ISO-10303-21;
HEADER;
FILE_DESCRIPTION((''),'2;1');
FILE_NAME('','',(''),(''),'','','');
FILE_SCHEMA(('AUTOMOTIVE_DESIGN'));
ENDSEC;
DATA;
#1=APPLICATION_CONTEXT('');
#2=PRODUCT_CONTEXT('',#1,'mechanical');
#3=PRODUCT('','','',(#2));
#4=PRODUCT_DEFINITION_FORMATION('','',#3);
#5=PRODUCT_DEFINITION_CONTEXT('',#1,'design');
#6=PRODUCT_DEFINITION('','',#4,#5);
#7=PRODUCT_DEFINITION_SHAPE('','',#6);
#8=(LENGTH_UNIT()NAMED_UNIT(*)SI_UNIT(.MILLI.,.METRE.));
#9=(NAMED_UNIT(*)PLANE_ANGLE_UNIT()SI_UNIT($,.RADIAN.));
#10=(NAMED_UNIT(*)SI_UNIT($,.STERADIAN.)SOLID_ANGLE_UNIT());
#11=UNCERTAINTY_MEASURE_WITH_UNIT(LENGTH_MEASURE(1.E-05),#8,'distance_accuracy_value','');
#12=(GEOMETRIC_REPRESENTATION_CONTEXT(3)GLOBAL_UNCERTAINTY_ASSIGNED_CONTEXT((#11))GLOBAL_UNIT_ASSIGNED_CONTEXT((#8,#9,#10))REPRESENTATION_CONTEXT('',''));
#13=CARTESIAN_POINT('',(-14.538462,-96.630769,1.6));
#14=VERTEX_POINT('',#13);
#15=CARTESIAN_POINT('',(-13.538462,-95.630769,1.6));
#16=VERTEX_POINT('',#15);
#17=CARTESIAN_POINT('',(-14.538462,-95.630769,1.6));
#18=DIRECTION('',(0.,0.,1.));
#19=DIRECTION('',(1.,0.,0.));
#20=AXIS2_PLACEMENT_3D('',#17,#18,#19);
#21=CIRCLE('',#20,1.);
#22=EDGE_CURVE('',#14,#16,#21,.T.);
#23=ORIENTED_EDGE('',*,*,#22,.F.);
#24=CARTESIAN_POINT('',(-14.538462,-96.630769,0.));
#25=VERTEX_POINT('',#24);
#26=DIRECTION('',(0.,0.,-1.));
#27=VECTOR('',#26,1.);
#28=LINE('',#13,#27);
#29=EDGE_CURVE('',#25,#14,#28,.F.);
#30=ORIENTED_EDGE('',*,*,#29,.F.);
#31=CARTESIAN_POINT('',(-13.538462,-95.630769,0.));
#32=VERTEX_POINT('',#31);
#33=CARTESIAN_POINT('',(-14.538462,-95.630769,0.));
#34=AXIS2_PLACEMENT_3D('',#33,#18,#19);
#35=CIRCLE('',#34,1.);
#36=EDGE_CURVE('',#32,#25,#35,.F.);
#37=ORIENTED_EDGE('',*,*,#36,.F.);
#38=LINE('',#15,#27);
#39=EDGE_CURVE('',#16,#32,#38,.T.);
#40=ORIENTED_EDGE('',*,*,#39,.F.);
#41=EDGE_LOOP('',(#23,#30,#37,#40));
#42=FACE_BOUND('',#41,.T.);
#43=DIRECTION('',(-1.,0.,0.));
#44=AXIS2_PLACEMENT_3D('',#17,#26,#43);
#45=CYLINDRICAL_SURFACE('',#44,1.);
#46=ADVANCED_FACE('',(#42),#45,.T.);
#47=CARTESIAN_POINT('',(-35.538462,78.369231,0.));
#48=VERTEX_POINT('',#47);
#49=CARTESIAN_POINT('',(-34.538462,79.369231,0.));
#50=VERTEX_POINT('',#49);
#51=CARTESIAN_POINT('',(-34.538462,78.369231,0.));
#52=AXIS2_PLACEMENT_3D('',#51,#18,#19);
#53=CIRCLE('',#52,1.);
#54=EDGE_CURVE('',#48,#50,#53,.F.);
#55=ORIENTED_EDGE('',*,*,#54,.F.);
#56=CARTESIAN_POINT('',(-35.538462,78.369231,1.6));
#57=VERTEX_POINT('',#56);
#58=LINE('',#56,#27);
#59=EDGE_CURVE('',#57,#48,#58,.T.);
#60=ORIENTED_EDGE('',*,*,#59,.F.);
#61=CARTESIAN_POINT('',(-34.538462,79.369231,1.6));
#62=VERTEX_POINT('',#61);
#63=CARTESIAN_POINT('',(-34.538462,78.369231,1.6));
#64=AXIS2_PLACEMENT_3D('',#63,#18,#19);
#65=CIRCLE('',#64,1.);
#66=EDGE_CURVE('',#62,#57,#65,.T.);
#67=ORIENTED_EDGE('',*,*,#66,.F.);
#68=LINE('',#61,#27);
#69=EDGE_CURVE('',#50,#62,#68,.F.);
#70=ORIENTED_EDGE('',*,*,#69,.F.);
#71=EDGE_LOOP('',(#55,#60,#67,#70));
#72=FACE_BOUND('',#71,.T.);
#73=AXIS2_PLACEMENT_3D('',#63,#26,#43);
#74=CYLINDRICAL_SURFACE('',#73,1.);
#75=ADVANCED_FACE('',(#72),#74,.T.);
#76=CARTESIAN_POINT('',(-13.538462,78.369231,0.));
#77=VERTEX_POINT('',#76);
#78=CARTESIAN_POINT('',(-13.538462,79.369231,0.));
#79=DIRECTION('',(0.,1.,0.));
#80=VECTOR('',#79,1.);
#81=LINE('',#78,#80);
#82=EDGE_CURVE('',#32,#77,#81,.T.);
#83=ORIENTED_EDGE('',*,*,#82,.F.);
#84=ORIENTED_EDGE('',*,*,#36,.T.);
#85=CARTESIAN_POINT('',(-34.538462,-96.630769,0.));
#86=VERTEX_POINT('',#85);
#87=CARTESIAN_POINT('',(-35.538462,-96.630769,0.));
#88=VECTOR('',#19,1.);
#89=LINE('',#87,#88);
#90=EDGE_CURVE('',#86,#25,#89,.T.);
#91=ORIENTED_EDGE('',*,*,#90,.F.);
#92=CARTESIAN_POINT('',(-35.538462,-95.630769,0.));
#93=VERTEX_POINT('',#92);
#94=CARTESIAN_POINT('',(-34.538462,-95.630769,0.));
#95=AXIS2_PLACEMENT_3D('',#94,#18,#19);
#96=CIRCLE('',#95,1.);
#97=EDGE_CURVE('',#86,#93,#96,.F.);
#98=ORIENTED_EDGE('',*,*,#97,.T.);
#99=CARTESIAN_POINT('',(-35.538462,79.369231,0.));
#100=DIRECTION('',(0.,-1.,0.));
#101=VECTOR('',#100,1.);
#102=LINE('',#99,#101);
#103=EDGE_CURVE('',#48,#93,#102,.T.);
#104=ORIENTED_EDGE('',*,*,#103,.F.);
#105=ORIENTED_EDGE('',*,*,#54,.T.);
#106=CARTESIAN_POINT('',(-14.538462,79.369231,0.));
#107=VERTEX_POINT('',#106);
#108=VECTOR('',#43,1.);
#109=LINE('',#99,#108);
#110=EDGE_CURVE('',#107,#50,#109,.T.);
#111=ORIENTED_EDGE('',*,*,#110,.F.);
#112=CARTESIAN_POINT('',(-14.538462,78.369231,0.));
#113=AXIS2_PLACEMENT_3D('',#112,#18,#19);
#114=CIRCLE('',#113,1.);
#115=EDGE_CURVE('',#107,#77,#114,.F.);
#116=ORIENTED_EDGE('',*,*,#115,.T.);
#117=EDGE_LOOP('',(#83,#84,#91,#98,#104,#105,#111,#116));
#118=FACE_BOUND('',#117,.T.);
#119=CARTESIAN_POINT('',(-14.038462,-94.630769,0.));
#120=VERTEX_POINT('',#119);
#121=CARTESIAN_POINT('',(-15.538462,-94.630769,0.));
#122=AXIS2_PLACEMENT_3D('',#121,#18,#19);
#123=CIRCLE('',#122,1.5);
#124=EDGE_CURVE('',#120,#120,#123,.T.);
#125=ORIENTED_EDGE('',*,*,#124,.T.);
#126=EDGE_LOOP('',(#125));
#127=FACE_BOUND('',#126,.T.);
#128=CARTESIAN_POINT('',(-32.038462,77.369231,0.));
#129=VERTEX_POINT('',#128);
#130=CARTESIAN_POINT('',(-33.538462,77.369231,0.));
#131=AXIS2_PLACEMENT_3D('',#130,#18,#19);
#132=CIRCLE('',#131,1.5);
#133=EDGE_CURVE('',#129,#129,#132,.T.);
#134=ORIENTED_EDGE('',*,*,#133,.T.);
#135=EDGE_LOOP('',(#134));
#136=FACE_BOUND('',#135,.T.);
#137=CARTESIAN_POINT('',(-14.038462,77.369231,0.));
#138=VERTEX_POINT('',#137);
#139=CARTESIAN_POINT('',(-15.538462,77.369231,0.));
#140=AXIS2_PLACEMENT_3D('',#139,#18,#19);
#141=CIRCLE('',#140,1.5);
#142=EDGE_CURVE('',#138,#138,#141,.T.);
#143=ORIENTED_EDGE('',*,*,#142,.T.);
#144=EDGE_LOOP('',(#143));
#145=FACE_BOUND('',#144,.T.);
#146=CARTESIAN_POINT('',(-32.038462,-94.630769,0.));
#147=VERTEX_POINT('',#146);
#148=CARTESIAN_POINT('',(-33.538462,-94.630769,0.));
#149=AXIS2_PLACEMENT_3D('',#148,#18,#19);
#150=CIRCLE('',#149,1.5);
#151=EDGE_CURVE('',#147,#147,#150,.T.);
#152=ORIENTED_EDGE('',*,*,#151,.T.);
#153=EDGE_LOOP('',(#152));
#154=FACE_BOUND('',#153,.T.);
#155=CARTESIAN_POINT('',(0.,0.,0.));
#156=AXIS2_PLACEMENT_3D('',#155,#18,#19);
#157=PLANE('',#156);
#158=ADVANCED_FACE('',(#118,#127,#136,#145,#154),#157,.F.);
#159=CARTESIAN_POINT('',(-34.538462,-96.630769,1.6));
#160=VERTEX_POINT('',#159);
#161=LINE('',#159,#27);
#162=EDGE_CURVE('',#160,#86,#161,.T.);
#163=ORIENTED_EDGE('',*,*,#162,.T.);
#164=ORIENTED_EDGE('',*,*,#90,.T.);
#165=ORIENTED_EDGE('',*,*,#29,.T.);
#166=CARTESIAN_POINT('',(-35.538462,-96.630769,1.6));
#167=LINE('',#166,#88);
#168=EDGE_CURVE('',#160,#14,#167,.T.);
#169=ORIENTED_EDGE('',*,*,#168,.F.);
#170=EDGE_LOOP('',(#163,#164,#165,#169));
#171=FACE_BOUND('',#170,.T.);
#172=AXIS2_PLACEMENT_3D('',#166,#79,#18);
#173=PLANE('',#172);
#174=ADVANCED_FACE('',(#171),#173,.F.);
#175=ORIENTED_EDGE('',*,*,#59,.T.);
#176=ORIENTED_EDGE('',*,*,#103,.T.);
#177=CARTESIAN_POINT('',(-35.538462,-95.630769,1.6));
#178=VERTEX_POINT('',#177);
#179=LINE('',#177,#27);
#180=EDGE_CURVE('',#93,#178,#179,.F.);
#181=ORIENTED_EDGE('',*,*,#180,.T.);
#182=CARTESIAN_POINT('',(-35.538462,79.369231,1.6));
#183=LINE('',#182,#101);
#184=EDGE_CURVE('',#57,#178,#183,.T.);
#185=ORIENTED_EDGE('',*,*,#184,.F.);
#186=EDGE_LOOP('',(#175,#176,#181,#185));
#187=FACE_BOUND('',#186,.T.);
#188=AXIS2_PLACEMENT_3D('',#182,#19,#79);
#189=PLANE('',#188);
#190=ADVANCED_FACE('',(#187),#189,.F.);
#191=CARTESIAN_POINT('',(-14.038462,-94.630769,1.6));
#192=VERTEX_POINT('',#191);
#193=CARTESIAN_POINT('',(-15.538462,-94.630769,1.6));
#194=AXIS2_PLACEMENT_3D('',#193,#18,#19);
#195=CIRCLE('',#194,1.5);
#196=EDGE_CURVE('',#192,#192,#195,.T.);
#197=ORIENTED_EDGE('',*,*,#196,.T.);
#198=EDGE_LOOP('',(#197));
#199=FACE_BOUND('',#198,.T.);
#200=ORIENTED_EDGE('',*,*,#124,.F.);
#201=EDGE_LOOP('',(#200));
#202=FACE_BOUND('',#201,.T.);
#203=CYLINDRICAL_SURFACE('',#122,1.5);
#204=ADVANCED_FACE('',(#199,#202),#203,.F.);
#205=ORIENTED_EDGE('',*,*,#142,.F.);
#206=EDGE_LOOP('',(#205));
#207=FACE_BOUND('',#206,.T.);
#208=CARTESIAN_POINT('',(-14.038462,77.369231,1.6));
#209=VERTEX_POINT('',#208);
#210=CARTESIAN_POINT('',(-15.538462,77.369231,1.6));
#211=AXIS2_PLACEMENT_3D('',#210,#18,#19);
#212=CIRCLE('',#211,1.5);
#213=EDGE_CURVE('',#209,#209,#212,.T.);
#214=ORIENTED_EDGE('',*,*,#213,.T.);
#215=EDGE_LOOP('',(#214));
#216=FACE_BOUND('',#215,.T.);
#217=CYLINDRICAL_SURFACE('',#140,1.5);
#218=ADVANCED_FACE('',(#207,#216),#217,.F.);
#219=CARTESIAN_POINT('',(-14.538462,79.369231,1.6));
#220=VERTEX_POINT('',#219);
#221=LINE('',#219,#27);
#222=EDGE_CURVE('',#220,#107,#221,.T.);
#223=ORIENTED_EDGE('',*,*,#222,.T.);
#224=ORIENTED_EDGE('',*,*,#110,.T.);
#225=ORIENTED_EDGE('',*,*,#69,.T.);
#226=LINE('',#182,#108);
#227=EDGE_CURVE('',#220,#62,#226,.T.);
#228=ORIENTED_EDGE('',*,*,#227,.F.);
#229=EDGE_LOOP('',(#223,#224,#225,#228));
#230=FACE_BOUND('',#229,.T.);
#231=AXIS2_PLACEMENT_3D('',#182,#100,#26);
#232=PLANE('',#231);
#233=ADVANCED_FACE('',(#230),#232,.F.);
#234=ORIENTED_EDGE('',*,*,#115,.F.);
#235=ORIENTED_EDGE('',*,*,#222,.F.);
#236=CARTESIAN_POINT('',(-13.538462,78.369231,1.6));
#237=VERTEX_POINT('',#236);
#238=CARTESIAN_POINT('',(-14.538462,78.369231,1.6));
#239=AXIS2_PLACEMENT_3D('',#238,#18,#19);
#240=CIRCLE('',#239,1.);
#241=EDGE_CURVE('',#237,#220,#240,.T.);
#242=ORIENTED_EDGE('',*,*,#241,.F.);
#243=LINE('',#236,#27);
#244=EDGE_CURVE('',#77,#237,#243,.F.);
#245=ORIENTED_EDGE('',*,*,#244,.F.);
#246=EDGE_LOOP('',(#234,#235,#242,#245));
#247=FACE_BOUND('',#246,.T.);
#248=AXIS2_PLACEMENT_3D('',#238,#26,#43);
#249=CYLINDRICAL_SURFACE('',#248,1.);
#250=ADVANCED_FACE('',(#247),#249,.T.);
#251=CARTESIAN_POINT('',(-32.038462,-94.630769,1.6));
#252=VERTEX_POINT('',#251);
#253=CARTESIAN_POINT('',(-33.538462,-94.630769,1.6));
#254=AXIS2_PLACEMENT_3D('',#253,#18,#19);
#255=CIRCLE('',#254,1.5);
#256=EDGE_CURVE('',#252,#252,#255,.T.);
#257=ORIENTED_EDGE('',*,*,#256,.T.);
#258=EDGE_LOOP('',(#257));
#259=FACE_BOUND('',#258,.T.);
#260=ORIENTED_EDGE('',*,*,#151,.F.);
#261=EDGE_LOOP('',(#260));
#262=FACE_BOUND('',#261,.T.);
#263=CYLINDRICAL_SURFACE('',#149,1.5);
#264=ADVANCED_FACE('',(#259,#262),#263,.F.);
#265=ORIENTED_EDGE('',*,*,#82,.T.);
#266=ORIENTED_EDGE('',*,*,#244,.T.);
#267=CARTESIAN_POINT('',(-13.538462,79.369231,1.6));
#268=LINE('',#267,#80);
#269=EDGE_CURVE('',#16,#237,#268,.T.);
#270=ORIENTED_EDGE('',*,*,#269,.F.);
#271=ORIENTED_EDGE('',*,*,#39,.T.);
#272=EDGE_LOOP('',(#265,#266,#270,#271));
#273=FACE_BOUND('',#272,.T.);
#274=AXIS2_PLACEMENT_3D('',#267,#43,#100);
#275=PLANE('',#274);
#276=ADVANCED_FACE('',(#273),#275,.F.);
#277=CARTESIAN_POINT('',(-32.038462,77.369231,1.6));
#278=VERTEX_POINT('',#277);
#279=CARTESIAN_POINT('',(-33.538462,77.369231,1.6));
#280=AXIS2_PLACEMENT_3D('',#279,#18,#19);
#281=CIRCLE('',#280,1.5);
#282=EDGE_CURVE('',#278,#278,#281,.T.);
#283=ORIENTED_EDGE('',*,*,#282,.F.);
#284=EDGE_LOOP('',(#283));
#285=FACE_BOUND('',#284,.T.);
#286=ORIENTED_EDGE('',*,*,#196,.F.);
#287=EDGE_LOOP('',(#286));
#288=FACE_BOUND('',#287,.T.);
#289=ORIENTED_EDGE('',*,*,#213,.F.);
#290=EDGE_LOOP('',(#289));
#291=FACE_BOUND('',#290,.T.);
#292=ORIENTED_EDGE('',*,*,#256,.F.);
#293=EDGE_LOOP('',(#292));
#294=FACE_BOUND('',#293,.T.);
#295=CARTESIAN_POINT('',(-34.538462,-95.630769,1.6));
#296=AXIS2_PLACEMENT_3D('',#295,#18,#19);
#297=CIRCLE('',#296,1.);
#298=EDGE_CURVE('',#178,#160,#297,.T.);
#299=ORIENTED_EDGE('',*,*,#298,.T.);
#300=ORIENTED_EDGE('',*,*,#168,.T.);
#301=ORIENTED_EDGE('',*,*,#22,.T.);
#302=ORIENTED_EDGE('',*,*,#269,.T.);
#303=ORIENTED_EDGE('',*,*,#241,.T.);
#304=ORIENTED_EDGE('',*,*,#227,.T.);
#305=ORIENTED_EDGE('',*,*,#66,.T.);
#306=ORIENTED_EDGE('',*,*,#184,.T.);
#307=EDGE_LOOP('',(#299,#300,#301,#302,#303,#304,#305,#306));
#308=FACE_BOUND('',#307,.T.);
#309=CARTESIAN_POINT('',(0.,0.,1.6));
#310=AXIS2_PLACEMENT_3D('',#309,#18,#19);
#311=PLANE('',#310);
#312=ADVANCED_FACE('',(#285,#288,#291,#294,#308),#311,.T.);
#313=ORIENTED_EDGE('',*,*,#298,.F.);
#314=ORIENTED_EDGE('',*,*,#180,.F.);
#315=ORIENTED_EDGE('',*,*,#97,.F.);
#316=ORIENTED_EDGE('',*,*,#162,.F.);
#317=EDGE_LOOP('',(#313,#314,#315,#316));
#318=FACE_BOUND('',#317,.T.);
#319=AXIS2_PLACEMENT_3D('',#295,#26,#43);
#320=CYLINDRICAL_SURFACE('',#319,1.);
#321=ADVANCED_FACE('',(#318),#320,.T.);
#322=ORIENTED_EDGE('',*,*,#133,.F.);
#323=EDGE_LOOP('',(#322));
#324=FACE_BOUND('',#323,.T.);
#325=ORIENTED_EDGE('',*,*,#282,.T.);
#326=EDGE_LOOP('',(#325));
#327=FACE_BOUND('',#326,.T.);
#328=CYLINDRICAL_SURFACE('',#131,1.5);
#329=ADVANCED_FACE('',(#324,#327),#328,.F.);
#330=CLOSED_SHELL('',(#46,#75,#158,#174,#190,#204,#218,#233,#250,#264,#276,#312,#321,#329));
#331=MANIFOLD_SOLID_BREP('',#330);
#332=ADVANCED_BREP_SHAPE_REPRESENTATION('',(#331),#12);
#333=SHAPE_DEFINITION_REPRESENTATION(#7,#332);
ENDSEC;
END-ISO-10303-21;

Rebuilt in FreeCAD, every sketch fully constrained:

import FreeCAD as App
import Part
import Sketcher


def edges_at(feature, points):
    """Names of the edges that pass closest to the given points."""
    edges = feature.Shape.Edges
    near = lambda p: min(range(len(edges)), key=lambda i: edges[i].distToShape(Part.Vertex(*p))[0])
    return sorted({f"Edge{near(p) + 1}" for p in points})

doc = App.newDocument("Part")
body = doc.addObject("PartDesign::Body", "Body")

sketch1 = doc.addObject("Sketcher::SketchObject", "Sketch")
body.addObject(sketch1)
sketch1.AttachmentSupport = (doc.XY_Plane, [""])
sketch1.MapMode = "FlatFace"
sketch1.addGeometry(Part.LineSegment(App.Vector(-36, 79, 0), App.Vector(-36, -97, 0)), False)
sketch1.addGeometry(Part.LineSegment(App.Vector(-36, -97, 0), App.Vector(-14, -97, 0)), False)
sketch1.addGeometry(Part.LineSegment(App.Vector(-14, -97, 0), App.Vector(-14, 79, 0)), False)
sketch1.addGeometry(Part.LineSegment(App.Vector(-14, 79, 0), App.Vector(-36, 79, 0)), False)
sketch1.addConstraint(Sketcher.Constraint("Coincident", 0, 2, 1, 1))
sketch1.addConstraint(Sketcher.Constraint("Coincident", 1, 2, 2, 1))
sketch1.addConstraint(Sketcher.Constraint("Coincident", 2, 2, 3, 1))
sketch1.addConstraint(Sketcher.Constraint("Coincident", 3, 2, 0, 1))
sketch1.addConstraint(Sketcher.Constraint("Vertical", 0))
sketch1.addConstraint(Sketcher.Constraint("Horizontal", 1))
sketch1.addConstraint(Sketcher.Constraint("Vertical", 2))
sketch1.addConstraint(Sketcher.Constraint("Horizontal", 3))
sketch1.addConstraint(Sketcher.Constraint("DistanceX", 1, 1, 1, 2, 22.0))
sketch1.addConstraint(Sketcher.Constraint("DistanceY", 0, 2, 0, 1, 176.0))
sketch1.addConstraint(Sketcher.Constraint("DistanceX", 0, 2, -1, 1, 35.538462))
sketch1.addConstraint(Sketcher.Constraint("DistanceY", 0, 2, -1, 1, 96.630769))
pad1 = doc.addObject("PartDesign::Pad", "Pad")
body.addObject(pad1)
pad1.Profile = sketch1
pad1.Length = 1.6

sketch2 = doc.addObject("Sketcher::SketchObject", "Sketch001")
body.addObject(sketch2)
sketch2.AttachmentSupport = (doc.XY_Plane, [""])
sketch2.MapMode = "FlatFace"
sketch2.AttachmentOffset = App.Placement(App.Vector(0, 0, 1.6), App.Rotation())
sketch2.addGeometry(Part.Circle(App.Vector(-33.5, 77.4, 0), App.Vector(0, 0, 1), 1.5), False)
sketch2.addGeometry(Part.Circle(App.Vector(-15.5, 77.4, 0), App.Vector(0, 0, 1), 1.5), False)
sketch2.addGeometry(Part.Circle(App.Vector(-33.5, -94.6, 0), App.Vector(0, 0, 1), 1.5), False)
sketch2.addGeometry(Part.Circle(App.Vector(-15.5, -94.6, 0), App.Vector(0, 0, 1), 1.5), False)
sketch2.addConstraint(Sketcher.Constraint("Equal", 0, 1))
sketch2.addConstraint(Sketcher.Constraint("Equal", 1, 2))
sketch2.addConstraint(Sketcher.Constraint("Equal", 2, 3))
sketch2.addConstraint(Sketcher.Constraint("Horizontal", 0, 3, 1, 3))
sketch2.addConstraint(Sketcher.Constraint("Horizontal", 2, 3, 3, 3))
sketch2.addConstraint(Sketcher.Constraint("Vertical", 0, 3, 2, 3))
sketch2.addConstraint(Sketcher.Constraint("Vertical", 1, 3, 3, 3))
sketch2.addConstraint(Sketcher.Constraint("Diameter", 0, 3.0))
sketch2.addConstraint(Sketcher.Constraint("DistanceX", 0, 3, 1, 3, 18.0))
sketch2.addConstraint(Sketcher.Constraint("DistanceY", 2, 3, 0, 3, 172.0))
sketch2.addConstraint(Sketcher.Constraint("DistanceX", 0, 3, -1, 1, 33.538462))
sketch2.addConstraint(Sketcher.Constraint("DistanceY", -1, 1, 0, 3, 77.369231))
pocket1 = doc.addObject("PartDesign::Pocket", "Pocket")
body.addObject(pocket1)
pocket1.Profile = sketch2
pocket1.Type = "ThroughAll"
doc.recompute()

fillet = doc.addObject("PartDesign::Fillet", "Fillet")
body.addObject(fillet)
fillet.Base = (pocket1, edges_at(pocket1, [
    (-35.538, 79.369, 0.8),
    (-13.538, 79.369, 0.8),
    (-13.538, -96.631, 0.8),
    (-35.538, -96.631, 0.8),
]))
fillet.Radius = 1

doc.recompute()
